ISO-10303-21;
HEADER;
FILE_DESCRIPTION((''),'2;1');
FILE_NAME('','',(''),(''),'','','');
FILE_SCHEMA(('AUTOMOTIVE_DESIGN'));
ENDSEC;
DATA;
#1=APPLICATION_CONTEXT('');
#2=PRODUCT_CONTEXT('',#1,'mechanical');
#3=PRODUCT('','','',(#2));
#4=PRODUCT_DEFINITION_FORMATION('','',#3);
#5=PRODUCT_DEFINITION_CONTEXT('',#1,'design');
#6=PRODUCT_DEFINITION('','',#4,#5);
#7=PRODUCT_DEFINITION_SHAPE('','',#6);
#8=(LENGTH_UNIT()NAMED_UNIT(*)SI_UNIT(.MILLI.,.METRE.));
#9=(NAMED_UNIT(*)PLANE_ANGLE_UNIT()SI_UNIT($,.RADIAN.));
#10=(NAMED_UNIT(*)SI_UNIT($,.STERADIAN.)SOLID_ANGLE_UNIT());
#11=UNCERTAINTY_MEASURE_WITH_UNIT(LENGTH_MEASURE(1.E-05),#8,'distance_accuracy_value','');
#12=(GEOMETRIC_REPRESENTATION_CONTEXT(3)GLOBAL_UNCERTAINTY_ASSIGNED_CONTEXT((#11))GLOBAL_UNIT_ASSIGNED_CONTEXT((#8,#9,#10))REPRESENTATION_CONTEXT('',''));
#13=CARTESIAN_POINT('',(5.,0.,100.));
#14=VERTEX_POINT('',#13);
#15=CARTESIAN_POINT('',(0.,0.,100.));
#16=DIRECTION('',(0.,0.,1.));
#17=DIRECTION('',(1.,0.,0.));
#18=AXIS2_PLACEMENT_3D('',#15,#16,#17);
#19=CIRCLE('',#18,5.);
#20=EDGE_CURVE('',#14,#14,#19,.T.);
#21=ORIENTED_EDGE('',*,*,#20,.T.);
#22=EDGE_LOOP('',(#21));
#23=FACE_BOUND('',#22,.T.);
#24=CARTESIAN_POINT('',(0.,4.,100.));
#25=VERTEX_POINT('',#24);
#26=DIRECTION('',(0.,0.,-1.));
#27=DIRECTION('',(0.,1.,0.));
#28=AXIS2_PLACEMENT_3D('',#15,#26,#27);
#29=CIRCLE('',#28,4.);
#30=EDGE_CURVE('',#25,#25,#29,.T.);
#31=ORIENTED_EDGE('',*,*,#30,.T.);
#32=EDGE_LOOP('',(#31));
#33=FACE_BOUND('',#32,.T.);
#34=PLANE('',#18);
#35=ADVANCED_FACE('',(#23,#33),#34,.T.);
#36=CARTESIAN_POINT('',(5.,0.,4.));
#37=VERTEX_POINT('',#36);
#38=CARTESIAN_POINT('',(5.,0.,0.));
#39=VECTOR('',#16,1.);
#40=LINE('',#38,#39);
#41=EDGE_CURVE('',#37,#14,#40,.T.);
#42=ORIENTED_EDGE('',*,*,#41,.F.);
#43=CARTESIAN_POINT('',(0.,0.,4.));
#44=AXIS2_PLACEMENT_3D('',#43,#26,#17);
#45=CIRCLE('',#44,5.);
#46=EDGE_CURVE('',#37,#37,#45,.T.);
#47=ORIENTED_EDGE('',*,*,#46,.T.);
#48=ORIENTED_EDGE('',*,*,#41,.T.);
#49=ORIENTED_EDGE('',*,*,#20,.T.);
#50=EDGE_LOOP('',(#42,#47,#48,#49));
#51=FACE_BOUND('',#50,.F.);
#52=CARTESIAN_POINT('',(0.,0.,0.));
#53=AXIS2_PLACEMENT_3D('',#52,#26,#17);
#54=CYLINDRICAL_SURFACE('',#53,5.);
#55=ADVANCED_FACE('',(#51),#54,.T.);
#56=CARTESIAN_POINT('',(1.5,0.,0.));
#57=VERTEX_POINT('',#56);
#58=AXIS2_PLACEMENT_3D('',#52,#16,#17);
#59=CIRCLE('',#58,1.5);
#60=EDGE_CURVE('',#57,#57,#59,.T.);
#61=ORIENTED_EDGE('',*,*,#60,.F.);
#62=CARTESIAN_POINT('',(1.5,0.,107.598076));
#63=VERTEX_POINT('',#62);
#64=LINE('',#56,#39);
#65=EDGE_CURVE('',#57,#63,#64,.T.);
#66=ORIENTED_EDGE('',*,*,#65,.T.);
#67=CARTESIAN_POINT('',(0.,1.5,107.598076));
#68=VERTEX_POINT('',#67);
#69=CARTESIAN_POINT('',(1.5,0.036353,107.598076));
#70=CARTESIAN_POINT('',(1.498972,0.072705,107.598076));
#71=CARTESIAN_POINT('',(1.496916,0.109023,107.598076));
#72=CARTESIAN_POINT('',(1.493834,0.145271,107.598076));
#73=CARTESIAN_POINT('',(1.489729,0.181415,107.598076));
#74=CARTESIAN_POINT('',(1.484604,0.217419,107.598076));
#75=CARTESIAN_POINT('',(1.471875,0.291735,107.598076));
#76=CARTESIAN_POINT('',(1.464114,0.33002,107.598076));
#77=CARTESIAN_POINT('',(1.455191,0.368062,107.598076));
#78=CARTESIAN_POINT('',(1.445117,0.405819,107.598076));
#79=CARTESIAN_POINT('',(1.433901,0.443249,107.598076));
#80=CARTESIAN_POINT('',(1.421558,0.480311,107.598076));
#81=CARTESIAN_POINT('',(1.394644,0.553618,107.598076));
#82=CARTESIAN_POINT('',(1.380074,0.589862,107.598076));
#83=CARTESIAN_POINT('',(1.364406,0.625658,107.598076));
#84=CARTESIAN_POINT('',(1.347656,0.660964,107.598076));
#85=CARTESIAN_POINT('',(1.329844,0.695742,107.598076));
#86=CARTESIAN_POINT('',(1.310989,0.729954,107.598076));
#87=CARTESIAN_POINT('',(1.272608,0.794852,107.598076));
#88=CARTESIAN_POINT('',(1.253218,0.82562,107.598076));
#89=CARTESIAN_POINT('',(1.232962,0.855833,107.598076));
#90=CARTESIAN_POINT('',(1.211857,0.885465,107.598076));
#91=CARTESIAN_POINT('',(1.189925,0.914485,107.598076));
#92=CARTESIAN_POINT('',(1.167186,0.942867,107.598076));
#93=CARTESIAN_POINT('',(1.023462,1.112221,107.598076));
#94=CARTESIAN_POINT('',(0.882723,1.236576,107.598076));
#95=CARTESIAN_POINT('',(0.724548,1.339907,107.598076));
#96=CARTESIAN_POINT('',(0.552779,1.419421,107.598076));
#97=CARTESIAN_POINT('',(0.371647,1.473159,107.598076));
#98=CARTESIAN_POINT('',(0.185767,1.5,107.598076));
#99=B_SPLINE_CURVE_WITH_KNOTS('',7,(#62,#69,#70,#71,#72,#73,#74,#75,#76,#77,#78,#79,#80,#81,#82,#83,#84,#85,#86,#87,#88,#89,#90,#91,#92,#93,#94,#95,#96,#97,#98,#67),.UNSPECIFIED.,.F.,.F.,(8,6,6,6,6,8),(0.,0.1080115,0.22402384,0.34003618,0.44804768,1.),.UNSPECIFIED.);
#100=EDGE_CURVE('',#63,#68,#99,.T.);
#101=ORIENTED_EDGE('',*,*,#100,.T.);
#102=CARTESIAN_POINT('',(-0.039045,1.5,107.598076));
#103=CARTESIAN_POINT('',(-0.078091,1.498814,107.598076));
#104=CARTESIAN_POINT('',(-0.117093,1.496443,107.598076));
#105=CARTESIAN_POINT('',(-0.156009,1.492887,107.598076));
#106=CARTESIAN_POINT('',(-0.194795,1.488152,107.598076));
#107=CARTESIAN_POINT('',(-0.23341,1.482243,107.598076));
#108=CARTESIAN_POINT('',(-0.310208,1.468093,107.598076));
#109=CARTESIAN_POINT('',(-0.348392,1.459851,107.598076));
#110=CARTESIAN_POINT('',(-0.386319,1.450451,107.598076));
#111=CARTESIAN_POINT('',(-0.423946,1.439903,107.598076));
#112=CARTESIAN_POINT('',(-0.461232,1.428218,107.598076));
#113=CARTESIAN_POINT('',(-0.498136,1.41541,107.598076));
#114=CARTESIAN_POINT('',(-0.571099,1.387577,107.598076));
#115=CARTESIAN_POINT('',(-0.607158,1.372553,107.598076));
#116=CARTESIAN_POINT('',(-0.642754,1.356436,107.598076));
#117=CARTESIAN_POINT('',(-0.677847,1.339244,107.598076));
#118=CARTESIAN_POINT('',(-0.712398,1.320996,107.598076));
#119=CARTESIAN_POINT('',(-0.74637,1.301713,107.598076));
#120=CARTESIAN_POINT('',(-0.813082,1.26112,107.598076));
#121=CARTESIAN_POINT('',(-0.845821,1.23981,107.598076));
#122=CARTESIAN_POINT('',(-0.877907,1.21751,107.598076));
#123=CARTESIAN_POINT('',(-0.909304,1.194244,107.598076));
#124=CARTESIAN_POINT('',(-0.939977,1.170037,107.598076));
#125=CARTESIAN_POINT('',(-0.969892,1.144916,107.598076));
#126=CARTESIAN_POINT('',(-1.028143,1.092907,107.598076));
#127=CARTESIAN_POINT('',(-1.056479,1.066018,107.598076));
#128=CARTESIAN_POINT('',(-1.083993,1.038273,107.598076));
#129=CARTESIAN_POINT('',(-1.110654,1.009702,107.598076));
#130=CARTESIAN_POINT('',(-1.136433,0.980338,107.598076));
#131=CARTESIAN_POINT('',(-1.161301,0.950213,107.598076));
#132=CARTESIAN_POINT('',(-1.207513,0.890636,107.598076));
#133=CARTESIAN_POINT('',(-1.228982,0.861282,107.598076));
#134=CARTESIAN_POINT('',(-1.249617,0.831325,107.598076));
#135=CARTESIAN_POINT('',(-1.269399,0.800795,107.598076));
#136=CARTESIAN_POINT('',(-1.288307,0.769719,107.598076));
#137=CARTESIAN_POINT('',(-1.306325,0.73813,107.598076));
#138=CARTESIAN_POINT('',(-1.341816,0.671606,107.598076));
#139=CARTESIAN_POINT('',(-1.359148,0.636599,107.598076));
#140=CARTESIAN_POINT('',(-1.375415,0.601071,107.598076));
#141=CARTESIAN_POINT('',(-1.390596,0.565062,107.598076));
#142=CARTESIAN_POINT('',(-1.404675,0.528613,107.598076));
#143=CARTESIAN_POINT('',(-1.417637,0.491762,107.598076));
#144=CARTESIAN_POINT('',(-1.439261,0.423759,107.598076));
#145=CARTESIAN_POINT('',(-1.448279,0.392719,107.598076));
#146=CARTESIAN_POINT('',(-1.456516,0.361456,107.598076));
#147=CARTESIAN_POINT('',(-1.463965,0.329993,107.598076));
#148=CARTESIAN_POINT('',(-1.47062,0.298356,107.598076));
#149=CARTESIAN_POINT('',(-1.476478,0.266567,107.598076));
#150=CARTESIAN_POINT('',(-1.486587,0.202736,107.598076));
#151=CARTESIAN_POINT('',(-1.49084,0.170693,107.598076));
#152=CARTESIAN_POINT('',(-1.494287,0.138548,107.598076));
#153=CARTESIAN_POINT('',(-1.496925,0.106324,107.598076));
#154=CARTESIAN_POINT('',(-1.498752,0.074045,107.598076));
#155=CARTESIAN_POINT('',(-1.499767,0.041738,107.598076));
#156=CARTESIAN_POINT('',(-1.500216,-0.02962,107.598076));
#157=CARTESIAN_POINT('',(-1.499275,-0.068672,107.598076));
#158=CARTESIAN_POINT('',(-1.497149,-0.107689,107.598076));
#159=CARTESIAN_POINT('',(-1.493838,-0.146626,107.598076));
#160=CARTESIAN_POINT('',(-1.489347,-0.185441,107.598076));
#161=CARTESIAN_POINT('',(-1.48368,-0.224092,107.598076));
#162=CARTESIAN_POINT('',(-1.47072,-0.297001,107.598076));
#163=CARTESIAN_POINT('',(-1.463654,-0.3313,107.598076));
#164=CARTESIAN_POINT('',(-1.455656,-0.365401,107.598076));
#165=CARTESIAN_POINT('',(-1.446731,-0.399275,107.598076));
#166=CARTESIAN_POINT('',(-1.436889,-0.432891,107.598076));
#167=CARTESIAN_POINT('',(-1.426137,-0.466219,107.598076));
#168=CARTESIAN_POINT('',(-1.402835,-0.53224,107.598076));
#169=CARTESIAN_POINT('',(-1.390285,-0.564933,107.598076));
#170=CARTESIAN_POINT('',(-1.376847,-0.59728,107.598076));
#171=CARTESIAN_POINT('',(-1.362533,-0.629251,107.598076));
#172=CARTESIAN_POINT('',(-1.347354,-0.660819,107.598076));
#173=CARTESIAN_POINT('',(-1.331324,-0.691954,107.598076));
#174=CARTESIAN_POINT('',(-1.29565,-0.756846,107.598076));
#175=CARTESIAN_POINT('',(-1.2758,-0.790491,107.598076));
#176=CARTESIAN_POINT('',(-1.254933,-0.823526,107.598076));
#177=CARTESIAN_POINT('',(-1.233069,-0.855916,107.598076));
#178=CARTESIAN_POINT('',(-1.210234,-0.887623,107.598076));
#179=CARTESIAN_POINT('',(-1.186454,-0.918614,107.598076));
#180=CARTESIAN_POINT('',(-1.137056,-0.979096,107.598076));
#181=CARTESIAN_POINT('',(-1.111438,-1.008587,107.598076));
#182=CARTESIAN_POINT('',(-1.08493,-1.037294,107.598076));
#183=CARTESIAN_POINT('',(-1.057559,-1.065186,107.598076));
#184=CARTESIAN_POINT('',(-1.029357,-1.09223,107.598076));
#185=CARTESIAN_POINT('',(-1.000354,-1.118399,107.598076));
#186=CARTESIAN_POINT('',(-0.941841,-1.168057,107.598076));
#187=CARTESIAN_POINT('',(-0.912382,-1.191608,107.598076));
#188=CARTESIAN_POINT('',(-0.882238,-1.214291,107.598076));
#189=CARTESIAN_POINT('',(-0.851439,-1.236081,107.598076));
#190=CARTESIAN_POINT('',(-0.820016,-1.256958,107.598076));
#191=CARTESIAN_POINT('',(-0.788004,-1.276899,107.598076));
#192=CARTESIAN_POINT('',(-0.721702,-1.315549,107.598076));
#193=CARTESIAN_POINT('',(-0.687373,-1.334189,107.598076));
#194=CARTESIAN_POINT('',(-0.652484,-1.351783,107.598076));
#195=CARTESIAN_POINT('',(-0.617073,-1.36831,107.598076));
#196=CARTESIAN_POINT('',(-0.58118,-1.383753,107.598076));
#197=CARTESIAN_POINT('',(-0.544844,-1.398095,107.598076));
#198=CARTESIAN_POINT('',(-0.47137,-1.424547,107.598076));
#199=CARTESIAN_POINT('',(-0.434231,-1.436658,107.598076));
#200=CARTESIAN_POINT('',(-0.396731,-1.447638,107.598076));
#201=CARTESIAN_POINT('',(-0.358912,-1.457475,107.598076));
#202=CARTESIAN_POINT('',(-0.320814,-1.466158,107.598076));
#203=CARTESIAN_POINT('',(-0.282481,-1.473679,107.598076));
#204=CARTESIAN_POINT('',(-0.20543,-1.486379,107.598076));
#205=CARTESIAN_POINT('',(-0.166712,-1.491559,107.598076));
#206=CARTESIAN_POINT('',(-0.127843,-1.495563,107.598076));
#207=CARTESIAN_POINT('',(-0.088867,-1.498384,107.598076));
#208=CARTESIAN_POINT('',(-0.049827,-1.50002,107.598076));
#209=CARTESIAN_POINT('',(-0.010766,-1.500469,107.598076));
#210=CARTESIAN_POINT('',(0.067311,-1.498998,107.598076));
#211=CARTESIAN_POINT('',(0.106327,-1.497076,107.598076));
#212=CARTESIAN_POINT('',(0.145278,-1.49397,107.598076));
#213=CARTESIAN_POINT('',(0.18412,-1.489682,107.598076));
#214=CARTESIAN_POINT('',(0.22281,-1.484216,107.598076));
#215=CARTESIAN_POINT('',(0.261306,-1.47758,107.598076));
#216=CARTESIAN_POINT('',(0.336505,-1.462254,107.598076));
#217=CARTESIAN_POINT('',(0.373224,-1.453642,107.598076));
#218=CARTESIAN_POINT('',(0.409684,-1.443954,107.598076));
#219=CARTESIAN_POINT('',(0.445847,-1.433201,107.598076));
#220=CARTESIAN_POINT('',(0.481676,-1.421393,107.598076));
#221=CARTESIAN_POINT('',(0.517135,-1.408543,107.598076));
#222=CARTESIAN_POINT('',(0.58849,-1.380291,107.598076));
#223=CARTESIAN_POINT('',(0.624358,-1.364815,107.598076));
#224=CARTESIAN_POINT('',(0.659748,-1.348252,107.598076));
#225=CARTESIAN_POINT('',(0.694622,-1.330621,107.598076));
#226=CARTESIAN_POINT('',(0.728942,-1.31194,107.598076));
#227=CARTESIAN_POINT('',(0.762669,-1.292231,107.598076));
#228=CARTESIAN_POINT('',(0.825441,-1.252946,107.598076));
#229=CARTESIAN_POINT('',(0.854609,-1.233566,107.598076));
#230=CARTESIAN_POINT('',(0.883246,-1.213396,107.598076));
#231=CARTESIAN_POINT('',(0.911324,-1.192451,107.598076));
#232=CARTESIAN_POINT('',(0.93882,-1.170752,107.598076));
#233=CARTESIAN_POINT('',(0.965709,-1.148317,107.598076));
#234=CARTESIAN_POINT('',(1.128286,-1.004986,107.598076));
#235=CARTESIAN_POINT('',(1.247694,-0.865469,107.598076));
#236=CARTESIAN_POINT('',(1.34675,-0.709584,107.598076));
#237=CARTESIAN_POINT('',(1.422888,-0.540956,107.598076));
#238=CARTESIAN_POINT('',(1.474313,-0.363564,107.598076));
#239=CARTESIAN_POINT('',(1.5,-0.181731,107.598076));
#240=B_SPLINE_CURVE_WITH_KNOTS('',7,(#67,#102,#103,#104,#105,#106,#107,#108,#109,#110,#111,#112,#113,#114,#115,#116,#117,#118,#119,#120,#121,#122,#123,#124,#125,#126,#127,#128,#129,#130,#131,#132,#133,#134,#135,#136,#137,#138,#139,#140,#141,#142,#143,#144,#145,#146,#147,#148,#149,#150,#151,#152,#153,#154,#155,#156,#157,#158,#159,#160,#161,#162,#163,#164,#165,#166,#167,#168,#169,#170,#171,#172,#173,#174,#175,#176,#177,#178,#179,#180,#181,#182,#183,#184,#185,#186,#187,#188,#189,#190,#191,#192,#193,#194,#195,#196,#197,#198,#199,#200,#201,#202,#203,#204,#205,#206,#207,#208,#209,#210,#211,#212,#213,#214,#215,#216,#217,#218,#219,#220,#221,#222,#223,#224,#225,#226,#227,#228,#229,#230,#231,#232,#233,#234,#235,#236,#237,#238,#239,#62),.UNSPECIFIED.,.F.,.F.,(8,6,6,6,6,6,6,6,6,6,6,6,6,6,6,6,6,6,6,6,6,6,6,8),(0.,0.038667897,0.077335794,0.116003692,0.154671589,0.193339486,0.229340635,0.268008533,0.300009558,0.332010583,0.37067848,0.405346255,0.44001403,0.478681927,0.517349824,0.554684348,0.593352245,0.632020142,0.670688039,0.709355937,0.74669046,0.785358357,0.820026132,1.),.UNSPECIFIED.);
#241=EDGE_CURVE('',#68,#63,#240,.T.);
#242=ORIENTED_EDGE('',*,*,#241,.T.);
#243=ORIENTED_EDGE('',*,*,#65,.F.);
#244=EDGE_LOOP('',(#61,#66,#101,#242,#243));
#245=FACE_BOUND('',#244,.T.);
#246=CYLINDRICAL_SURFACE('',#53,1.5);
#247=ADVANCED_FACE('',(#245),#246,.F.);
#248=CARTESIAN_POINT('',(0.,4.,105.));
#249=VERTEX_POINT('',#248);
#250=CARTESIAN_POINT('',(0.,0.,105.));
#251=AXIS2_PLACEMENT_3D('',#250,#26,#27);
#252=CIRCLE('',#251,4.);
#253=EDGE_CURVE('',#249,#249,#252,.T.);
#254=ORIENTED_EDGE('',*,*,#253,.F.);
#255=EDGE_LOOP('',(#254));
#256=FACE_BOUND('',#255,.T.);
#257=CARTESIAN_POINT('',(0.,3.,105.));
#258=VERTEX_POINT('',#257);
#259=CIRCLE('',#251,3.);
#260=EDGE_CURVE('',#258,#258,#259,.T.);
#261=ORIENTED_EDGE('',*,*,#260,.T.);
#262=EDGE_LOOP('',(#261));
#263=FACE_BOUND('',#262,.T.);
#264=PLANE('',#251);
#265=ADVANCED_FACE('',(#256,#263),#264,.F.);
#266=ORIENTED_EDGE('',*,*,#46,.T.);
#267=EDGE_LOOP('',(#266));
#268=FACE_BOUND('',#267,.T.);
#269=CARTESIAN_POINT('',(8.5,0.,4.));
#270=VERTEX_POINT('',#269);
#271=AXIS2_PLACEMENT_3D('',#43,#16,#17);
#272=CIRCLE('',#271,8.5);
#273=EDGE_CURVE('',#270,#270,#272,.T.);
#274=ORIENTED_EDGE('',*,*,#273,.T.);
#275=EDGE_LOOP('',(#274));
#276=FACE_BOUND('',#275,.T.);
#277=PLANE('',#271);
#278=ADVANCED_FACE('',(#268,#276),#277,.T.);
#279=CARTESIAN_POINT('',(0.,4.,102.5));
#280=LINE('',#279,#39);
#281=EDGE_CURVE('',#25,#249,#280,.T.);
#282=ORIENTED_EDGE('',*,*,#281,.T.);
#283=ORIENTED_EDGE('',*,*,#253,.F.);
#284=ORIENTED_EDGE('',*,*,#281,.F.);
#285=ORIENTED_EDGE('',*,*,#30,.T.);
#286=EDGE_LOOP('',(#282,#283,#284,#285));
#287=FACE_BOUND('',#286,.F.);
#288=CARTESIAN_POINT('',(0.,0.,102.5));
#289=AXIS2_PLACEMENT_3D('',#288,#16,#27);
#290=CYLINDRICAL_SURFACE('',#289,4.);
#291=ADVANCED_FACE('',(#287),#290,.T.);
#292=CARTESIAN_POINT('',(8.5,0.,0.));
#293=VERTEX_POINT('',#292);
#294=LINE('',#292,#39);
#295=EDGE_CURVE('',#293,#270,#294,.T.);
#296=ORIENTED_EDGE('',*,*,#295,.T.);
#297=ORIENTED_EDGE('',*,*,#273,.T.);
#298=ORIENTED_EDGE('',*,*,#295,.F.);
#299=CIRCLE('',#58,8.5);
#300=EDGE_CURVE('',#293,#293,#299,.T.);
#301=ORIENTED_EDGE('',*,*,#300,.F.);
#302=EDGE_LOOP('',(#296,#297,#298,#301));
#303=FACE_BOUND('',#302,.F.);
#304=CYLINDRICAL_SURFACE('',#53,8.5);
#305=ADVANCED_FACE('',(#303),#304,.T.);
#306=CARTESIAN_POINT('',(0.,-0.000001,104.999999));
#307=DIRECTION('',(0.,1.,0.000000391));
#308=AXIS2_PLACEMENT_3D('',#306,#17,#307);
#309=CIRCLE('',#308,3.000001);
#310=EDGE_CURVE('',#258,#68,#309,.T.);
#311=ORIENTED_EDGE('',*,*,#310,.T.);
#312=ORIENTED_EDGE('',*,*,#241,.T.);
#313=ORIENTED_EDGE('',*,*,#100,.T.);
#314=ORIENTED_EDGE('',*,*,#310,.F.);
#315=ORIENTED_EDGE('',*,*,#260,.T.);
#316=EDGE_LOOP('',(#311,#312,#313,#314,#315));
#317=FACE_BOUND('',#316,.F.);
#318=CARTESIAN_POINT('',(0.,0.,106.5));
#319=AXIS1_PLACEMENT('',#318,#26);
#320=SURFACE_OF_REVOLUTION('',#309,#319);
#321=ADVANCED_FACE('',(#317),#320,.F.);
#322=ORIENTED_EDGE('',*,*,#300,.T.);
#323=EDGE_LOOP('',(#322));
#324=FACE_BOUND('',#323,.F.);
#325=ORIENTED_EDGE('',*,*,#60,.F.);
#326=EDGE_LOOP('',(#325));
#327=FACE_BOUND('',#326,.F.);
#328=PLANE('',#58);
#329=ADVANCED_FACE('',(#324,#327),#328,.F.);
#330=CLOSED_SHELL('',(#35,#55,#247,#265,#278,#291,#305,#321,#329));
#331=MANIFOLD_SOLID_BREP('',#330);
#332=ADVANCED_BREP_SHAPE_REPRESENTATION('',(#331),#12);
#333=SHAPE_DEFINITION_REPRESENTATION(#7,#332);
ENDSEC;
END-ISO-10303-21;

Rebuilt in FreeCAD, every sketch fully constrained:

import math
import FreeCAD as App
import Part
import Sketcher

V = App.Vector

doc = App.newDocument("Part")
body = doc.addObject("PartDesign::Body", "Body")

# Sketch on XY plane
sketch1 = body.newObject("Sketcher::SketchObject", "Sketch")
sketch1.AttachmentSupport = (doc.getObject("XY_Plane"), [""])
sketch1.MapMode = "FlatFace"
sketch1.addGeometry(Part.Circle(V(0, 0, 0), V(0, 0, 1), 8.5), False)
sketch1.addConstraint([
    Sketcher.Constraint("Coincident", 0, 3, -1, 1),
    Sketcher.Constraint("Diameter", 0, 17.0),
])
pad1 = body.newObject("PartDesign::Pad", "Pad")
pad1.Profile = sketch1
pad1.Length = 4

# Sketch on XY plane
sketch2 = body.newObject("Sketcher::SketchObject", "Sketch001")
sketch2.AttachmentSupport = (doc.getObject("XY_Plane"), [""])
sketch2.MapMode = "FlatFace"
sketch2.addGeometry(Part.Circle(V(0, 0, 0), V(0, 0, 1), 5), False)
sketch2.addConstraint([
    Sketcher.Constraint("Coincident", 0, 3, -1, 1),
    Sketcher.Constraint("Diameter", 0, 10.0),
])
pad2 = body.newObject("PartDesign::Pad", "Pad001")
pad2.Profile = sketch2
pad2.Length = 100

# Sketch on YZ plane
sketch3 = body.newObject("Sketcher::SketchObject", "Sketch002")
sketch3.AttachmentSupport = (doc.getObject("YZ_Plane"), [""])
sketch3.MapMode = "FlatFace"
sketch3.addGeometry([
    Part.LineSegment(V(0, 105, 0), V(0, 100, 0)),
    Part.LineSegment(V(0, 100, 0), V(4, 100, 0)),
    Part.LineSegment(V(4, 100, 0), V(4, 105, 0)),
    Part.LineSegment(V(4, 105, 0), V(0, 105, 0)),
], False)
sketch3.addConstraint([
    Sketcher.Constraint("Coincident", 0, 2, 1, 1),
    Sketcher.Constraint("Coincident", 1, 2, 2, 1),
    Sketcher.Constraint("Coincident", 2, 2, 3, 1),
    Sketcher.Constraint("Coincident", 3, 2, 0, 1),
    Sketcher.Constraint("Vertical", 0),
    Sketcher.Constraint("Horizontal", 1),
    Sketcher.Constraint("Vertical", 2),
    Sketcher.Constraint("Horizontal", 3),
    Sketcher.Constraint("PointOnObject", 0, 2, -2),
    Sketcher.Constraint("DistanceX", 1, 1, 1, 2, 4.0),
    Sketcher.Constraint("DistanceY", 0, 2, 0, 1, 5.0),
    Sketcher.Constraint("DistanceY", -1, 1, 0, 2, 100.0),
])
revolution = body.newObject("PartDesign::Revolution", "Revolution")
revolution.Profile = sketch3
revolution.ReferenceAxis = (sketch3, ["V_Axis"])
revolution.Angle = 360

# Sketch on YZ plane
sketch4 = body.newObject("Sketcher::SketchObject", "Sketch003")
sketch4.AttachmentSupport = (doc.getObject("YZ_Plane"), [""])
sketch4.MapMode = "FlatFace"
sketch4.addGeometry([
    Part.ArcOfCircle(Part.Circle(V(-0.000001, 104.999999, 0), V(0, 0, 1), 3.000001), math.radians(0.000022), math.radians(89.999978)),
    Part.LineSegment(V(0, 108, 0), V(0, 105, 0)),
    Part.LineSegment(V(0, 105, 0), V(3, 105, 0)),
], False)
sketch4.addConstraint([
    Sketcher.Constraint("Coincident", 0, 2, 1, 1),
    Sketcher.Constraint("Coincident", 1, 2, 2, 1),
    Sketcher.Constraint("Coincident", 2, 2, 0, 1),
    Sketcher.Constraint("Vertical", 1),
    Sketcher.Constraint("Horizontal", 2),
    Sketcher.Constraint("Coincident", 1, 2, 0, 3),
    Sketcher.Constraint("PointOnObject", 0, 3, -2),
    Sketcher.Constraint("Radius", 0, 3.000001),
    Sketcher.Constraint("DistanceY", -1, 1, 0, 3, 104.999999),
])
revolution2 = body.newObject("PartDesign::Revolution", "Revolution001")
revolution2.Profile = sketch4
revolution2.ReferenceAxis = (sketch4, ["V_Axis"])
revolution2.Angle = 360

# Sketch on XY plane
sketch5 = body.newObject("Sketcher::SketchObject", "Sketch004")
sketch5.AttachmentSupport = (doc.getObject("XY_Plane"), [""])
sketch5.MapMode = "FlatFace"
sketch5.addGeometry(Part.Circle(V(0, 0, 0), V(0, 0, 1), 1.5), False)
sketch5.addConstraint([
    Sketcher.Constraint("Coincident", 0, 3, -1, 1),
    Sketcher.Constraint("Diameter", 0, 3.0),
])
pocket1 = body.newObject("PartDesign::Pocket", "Pocket")
pocket1.Profile = sketch5
pocket1.Length = 109.1
pocket1.Reversed = True

doc.recompute()
